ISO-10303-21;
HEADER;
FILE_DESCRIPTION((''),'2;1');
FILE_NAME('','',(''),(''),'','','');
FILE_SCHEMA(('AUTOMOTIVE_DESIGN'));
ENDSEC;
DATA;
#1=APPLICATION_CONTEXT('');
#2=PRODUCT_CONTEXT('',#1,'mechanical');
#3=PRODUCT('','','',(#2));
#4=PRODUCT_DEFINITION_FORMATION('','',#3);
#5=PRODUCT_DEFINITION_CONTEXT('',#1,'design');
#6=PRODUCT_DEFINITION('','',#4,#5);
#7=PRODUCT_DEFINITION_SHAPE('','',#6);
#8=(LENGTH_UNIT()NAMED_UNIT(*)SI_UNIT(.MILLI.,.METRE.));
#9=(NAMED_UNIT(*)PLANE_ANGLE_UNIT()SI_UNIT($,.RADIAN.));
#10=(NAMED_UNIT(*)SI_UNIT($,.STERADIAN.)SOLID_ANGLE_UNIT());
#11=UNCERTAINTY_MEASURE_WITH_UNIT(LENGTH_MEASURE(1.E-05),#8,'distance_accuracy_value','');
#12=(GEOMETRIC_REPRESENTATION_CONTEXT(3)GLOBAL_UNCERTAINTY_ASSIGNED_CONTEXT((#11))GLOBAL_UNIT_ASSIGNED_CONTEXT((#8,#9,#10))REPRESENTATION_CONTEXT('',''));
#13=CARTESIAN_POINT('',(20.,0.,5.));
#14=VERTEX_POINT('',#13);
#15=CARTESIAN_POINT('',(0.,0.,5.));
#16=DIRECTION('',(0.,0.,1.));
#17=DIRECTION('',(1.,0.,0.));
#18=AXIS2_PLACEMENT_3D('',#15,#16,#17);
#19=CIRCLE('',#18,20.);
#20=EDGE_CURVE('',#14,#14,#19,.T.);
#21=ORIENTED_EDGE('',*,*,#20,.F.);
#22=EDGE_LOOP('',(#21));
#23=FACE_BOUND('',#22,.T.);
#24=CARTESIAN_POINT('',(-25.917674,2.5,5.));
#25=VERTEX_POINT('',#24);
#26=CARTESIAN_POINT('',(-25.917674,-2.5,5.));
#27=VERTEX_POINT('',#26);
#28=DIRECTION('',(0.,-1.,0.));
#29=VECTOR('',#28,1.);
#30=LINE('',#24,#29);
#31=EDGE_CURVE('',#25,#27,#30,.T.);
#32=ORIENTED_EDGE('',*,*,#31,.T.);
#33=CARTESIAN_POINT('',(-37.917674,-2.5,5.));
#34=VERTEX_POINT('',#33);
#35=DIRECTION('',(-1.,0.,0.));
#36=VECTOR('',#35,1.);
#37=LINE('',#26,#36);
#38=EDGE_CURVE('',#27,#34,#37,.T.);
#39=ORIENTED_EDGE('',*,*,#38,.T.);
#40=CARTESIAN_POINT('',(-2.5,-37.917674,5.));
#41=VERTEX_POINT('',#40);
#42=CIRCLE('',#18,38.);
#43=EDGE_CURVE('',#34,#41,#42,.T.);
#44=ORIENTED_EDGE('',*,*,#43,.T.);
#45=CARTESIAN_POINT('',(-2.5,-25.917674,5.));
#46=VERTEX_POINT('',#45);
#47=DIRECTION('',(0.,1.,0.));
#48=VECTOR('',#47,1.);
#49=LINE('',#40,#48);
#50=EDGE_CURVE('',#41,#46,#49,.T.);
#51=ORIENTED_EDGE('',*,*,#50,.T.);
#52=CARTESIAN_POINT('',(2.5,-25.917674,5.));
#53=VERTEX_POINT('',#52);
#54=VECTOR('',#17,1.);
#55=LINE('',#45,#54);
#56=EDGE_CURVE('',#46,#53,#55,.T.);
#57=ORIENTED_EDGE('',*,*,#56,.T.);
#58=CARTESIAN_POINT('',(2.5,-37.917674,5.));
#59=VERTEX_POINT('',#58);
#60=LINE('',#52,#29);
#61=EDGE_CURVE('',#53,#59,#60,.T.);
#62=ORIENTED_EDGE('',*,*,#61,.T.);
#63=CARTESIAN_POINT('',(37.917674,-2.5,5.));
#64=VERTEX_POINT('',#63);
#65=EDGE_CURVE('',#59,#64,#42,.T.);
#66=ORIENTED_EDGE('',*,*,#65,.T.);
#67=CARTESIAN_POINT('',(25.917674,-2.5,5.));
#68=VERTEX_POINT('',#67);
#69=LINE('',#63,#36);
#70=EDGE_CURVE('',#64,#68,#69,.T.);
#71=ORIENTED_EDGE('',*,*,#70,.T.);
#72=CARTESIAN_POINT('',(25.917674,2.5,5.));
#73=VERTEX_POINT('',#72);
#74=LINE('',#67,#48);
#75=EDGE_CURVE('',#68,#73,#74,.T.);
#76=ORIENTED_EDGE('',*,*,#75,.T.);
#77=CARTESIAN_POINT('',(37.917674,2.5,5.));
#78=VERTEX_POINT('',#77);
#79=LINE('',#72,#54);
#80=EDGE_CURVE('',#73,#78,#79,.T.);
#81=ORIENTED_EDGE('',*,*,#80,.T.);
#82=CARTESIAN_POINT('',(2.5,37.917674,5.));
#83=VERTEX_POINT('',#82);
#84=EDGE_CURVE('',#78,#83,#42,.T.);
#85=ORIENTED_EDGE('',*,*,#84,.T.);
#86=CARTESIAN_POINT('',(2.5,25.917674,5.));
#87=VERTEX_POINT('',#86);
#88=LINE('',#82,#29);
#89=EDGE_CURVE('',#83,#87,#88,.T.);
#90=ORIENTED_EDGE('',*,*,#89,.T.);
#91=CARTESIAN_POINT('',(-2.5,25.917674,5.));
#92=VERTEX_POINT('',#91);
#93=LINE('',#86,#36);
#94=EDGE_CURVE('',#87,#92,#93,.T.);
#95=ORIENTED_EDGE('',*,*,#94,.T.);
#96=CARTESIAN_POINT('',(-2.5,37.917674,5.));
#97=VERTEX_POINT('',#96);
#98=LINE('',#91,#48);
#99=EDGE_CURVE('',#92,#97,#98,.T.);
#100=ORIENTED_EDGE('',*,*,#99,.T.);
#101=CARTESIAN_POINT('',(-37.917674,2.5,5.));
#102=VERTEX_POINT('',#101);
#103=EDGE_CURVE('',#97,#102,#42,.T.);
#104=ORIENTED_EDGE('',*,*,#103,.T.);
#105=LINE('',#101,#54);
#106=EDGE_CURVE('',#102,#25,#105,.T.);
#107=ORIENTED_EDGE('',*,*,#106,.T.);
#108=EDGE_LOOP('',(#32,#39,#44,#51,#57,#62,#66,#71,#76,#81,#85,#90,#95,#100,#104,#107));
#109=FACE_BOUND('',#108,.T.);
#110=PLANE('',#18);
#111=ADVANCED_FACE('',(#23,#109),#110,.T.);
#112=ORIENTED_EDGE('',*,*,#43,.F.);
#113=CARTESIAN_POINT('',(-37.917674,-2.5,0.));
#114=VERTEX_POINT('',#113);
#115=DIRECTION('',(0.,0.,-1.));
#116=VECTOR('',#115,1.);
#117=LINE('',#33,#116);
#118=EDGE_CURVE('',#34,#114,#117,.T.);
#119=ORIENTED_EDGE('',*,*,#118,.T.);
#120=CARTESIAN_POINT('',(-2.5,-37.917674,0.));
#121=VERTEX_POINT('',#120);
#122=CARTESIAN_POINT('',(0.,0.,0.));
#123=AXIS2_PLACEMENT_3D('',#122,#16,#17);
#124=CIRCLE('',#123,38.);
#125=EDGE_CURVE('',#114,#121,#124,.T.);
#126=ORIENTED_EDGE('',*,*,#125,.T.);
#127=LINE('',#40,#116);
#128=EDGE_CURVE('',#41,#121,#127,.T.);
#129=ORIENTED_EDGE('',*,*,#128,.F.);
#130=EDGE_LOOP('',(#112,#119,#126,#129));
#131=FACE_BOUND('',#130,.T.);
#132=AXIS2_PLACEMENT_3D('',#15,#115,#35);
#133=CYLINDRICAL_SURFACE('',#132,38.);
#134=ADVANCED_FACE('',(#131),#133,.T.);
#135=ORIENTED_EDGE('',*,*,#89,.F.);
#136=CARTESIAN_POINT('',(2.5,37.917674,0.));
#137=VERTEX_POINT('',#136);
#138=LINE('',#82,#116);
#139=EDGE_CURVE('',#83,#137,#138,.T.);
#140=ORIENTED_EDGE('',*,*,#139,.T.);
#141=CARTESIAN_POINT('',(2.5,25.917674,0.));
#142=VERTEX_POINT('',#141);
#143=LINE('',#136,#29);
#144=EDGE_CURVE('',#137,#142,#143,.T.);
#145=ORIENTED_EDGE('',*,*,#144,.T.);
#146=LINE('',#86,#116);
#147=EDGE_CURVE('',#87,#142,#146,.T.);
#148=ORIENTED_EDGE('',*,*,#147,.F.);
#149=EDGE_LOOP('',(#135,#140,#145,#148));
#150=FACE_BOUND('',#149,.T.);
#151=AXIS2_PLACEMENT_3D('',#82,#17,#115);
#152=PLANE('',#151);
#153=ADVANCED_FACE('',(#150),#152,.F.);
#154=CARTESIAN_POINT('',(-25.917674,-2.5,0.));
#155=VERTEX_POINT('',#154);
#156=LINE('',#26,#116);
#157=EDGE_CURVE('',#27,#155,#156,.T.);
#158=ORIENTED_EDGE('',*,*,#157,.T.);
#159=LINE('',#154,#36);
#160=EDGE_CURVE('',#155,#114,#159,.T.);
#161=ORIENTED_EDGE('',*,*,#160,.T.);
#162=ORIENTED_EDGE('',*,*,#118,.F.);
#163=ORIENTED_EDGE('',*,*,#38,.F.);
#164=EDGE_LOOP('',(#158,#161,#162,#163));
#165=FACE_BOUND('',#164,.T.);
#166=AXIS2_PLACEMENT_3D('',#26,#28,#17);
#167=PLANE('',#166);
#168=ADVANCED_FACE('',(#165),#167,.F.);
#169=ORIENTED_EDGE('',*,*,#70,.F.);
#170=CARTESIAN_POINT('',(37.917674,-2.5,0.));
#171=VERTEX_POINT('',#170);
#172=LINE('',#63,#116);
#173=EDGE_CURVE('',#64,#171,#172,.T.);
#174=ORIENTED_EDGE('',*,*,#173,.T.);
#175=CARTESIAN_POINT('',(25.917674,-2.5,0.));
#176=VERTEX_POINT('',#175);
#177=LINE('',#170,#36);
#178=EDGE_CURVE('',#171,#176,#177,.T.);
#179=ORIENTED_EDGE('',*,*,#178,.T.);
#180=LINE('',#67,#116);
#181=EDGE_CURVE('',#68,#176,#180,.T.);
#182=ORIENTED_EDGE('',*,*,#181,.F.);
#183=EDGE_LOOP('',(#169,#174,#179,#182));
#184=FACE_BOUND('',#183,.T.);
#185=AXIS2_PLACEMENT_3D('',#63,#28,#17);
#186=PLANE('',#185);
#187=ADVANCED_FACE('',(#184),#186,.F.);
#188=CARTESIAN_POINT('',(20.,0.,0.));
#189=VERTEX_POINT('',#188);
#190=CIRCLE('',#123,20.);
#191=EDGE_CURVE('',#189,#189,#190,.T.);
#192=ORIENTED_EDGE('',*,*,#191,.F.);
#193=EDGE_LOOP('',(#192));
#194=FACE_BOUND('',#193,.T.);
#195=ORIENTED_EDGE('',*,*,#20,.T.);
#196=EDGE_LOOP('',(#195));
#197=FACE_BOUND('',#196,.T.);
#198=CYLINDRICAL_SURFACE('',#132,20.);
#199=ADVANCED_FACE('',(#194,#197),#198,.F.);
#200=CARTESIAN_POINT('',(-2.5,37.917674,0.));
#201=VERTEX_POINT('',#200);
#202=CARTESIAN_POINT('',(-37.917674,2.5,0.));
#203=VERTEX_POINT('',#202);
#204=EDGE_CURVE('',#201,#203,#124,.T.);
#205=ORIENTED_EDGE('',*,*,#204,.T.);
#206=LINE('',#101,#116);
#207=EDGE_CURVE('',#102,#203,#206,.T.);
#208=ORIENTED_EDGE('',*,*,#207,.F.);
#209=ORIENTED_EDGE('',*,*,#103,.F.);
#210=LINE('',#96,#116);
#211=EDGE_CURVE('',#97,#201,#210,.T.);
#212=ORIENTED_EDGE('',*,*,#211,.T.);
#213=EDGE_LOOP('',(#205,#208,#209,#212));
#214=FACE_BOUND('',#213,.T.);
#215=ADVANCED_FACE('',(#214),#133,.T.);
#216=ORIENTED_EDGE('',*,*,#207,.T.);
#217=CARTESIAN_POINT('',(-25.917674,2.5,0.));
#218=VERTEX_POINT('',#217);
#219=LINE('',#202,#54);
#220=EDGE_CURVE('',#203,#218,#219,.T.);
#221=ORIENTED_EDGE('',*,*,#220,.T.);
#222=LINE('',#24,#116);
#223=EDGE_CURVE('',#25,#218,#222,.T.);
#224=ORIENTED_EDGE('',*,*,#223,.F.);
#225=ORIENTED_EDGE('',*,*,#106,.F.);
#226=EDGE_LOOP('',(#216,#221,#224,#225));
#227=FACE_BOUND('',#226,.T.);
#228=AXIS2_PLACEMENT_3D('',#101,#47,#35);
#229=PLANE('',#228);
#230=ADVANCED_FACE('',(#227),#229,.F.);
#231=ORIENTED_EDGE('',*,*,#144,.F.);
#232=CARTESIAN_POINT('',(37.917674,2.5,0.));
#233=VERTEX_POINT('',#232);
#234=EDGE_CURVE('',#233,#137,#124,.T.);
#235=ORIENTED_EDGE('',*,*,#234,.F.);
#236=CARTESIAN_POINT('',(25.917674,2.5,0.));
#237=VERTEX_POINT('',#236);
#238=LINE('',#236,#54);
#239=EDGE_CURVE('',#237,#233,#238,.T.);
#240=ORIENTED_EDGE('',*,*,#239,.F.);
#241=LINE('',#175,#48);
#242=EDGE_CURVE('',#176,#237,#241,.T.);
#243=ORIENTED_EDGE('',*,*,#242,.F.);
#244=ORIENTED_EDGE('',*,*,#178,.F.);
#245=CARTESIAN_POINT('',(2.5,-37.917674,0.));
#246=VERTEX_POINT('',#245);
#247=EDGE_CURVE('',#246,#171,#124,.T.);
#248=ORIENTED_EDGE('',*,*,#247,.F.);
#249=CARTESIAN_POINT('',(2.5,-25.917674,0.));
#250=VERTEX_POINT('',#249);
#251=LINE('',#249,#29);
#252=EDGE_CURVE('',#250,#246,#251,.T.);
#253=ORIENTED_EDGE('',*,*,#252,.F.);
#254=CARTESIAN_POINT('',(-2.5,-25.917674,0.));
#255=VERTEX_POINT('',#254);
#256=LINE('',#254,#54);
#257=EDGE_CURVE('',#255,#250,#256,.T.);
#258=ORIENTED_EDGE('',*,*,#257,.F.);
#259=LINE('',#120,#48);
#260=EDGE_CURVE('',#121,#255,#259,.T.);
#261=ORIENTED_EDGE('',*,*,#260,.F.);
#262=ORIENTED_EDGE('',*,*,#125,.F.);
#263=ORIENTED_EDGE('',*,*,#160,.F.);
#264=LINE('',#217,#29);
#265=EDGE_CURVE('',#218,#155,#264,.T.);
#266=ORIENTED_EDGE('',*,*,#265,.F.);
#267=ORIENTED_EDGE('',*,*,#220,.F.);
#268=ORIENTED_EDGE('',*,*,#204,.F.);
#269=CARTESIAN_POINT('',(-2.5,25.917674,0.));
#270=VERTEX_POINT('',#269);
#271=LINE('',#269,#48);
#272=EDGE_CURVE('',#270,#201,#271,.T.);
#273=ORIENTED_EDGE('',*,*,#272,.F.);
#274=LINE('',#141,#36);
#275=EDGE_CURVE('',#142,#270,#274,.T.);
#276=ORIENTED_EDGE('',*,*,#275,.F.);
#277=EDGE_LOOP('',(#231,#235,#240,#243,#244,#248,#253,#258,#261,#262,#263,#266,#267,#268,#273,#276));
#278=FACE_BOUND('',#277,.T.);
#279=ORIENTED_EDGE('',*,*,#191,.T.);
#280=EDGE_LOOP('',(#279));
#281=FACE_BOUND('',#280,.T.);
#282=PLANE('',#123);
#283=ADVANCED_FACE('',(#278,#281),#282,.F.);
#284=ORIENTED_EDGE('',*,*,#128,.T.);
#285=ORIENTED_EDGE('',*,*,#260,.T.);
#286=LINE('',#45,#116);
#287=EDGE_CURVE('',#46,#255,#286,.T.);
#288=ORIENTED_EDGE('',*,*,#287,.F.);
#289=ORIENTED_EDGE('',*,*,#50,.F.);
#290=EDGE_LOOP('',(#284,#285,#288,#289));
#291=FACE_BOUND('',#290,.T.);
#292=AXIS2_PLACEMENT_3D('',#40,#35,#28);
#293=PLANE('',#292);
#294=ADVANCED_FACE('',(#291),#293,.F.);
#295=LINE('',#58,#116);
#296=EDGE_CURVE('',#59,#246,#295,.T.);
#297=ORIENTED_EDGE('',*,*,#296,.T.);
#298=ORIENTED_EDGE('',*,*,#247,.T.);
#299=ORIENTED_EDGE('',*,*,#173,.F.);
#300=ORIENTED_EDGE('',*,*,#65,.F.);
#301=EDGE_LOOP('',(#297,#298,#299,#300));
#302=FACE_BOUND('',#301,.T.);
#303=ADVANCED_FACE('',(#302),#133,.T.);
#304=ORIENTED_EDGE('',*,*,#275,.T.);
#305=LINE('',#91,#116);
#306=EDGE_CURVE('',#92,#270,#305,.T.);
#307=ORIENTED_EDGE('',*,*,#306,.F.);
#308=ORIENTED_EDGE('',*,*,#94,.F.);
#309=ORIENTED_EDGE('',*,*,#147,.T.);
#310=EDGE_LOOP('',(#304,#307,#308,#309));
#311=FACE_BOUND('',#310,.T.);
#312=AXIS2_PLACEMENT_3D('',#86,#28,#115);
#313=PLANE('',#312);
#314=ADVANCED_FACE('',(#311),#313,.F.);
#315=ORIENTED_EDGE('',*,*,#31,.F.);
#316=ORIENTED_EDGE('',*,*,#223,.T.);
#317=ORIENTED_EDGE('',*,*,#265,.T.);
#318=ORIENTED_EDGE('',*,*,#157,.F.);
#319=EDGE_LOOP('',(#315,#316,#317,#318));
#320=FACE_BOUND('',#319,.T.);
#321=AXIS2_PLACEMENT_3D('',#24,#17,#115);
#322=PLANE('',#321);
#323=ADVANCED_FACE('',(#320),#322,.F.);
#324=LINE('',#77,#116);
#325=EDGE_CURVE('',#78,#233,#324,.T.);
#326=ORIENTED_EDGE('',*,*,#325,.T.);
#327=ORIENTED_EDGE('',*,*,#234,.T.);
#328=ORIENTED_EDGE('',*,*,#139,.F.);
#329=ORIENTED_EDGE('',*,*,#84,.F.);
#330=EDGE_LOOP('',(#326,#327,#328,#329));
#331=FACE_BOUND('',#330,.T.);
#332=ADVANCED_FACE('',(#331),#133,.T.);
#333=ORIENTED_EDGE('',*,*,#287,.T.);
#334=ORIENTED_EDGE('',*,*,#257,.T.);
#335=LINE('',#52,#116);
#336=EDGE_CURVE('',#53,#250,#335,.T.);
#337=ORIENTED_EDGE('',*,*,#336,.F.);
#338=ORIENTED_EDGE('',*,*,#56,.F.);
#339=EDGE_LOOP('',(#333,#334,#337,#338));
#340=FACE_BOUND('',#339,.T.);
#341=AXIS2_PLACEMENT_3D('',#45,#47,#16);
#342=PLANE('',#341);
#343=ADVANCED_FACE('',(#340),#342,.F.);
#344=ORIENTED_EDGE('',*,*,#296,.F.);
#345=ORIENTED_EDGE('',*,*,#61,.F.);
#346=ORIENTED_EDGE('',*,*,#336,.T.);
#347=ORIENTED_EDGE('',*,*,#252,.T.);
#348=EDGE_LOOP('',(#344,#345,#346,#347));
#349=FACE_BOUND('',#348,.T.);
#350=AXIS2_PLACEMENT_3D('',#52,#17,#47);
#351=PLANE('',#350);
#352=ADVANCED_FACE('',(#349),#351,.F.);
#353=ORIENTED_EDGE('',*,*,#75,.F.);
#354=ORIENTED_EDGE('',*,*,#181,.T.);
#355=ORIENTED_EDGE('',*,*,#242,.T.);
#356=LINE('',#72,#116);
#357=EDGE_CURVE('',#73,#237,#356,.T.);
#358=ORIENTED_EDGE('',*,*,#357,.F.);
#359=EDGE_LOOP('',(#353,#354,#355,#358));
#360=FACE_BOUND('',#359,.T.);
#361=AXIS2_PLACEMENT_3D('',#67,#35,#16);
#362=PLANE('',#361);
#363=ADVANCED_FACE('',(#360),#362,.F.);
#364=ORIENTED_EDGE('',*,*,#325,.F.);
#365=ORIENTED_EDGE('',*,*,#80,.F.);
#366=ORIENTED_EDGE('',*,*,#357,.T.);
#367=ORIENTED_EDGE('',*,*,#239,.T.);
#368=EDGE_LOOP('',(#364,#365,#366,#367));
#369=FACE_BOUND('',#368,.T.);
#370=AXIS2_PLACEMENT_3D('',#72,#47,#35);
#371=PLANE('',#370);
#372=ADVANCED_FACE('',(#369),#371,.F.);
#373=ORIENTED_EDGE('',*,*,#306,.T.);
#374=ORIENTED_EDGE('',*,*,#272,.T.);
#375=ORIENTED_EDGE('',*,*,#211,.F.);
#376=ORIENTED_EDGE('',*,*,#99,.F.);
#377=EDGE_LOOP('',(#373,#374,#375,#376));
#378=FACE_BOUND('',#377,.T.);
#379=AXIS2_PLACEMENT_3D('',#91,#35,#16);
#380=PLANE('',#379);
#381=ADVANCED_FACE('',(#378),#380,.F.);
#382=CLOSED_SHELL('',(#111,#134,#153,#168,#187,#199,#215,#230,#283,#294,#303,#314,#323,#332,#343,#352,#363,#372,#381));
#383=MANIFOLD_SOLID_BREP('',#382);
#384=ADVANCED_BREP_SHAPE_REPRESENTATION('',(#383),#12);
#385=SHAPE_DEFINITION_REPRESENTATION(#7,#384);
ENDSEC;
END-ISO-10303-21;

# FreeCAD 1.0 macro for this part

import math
import FreeCAD as App
import Part
import Sketcher
from FreeCAD import Vector

doc = App.newDocument("Part")
body = doc.addObject("PartDesign::Body", "Body")

# Sketch on XY plane
sketch1 = body.newObject("Sketcher::SketchObject", "Sketch")
sketch1.AttachmentSupport = (doc.getObject("XY_Plane"), [""])
sketch1.MapMode = "FlatFace"
sketch1.addGeometry([
    Part.LineSegment(Vector(2, 38, 0), Vector(2, 26, 0)),  # 0
    Part.LineSegment(Vector(2, 26, 0), Vector(-2, 26, 0)),  # 1
    Part.LineSegment(Vector(-2, 26, 0), Vector(-2, 38, 0)),  # 2
    Part.ArcOfCircle(Part.Circle(Vector(0, 0, 0), Vector(0, 0, 1), 38), math.radians(94), math.radians(176)),  # 3
    Part.LineSegment(Vector(-38, 2, 0), Vector(-26, 2, 0)),  # 4
    Part.LineSegment(Vector(-26, 2, 0), Vector(-26, -2, 0)),  # 5
    Part.LineSegment(Vector(-26, -2, 0), Vector(-38, -2, 0)),  # 6
    Part.ArcOfCircle(Part.Circle(Vector(0, 0, 0), Vector(0, 0, 1), 38), math.radians(-176), math.radians(-94)),  # 7
    Part.LineSegment(Vector(-2, -38, 0), Vector(-2, -26, 0)),  # 8
    Part.LineSegment(Vector(-2, -26, 0), Vector(2, -26, 0)),  # 9
    Part.LineSegment(Vector(2, -26, 0), Vector(2, -38, 0)),  # 10
    Part.ArcOfCircle(Part.Circle(Vector(0, 0, 0), Vector(0, 0, 1), 38), math.radians(-86), math.radians(-4)),  # 11
    Part.LineSegment(Vector(38, -2, 0), Vector(26, -2, 0)),  # 12
    Part.LineSegment(Vector(26, -2, 0), Vector(26, 2, 0)),  # 13
    Part.LineSegment(Vector(26, 2, 0), Vector(38, 2, 0)),  # 14
    Part.ArcOfCircle(Part.Circle(Vector(0, 0, 0), Vector(0, 0, 1), 38), math.radians(4), math.radians(86)),  # 15
    Part.Circle(Vector(0, 0, 0), Vector(0, 0, 1), 20),  # 16
], False)
sketch1.addConstraint([
    Sketcher.Constraint("Coincident", 0, 2, 1, 1),
    Sketcher.Constraint("Coincident", 1, 2, 2, 1),
    Sketcher.Constraint("Coincident", 2, 2, 3, 1),
    Sketcher.Constraint("Coincident", 3, 2, 4, 1),
    Sketcher.Constraint("Coincident", 4, 2, 5, 1),
    Sketcher.Constraint("Coincident", 5, 2, 6, 1),
    Sketcher.Constraint("Coincident", 6, 2, 7, 1),
    Sketcher.Constraint("Coincident", 7, 2, 8, 1),
    Sketcher.Constraint("Coincident", 8, 2, 9, 1),
    Sketcher.Constraint("Coincident", 9, 2, 10, 1),
    Sketcher.Constraint("Coincident", 10, 2, 11, 1),
    Sketcher.Constraint("Coincident", 11, 2, 12, 1),
    Sketcher.Constraint("Coincident", 12, 2, 13, 1),
    Sketcher.Constraint("Coincident", 13, 2, 14, 1),
    Sketcher.Constraint("Coincident", 14, 2, 15, 1),
    Sketcher.Constraint("Coincident", 15, 2, 0, 1),
    Sketcher.Constraint("Vertical", 0),
    Sketcher.Constraint("Horizontal", 1),
    Sketcher.Constraint("Vertical", 2),
    Sketcher.Constraint("Horizontal", 4),
    Sketcher.Constraint("Vertical", 5),
    Sketcher.Constraint("Horizontal", 6),
    Sketcher.Constraint("Vertical", 8),
    Sketcher.Constraint("Horizontal", 9),
    Sketcher.Constraint("Vertical", 10),
    Sketcher.Constraint("Horizontal", 12),
    Sketcher.Constraint("Vertical", 13),
    Sketcher.Constraint("Horizontal", 14),
    Sketcher.Constraint("Coincident", 3, 3, -1, 1),
    Sketcher.Constraint("Coincident", 7, 3, -1, 1),
    Sketcher.Constraint("Coincident", 11, 3, -1, 1),
    Sketcher.Constraint("Coincident", 15, 3, -1, 1),
    Sketcher.Constraint("Coincident", 16, 3, -1, 1),
    Sketcher.Constraint("Equal", 3, 7),
    Sketcher.Constraint("Equal", 7, 11),
    Sketcher.Constraint("Equal", 11, 15),
    Sketcher.Constraint("Symmetric", 0, 2, 8, 2, -1, 1),
    Sketcher.Constraint("Symmetric", 4, 2, 12, 2, -1, 1),
    Sketcher.Constraint("Horizontal", 7, 2, 10, 2),
    Sketcher.Constraint("Horizontal", 6, 2, 11, 2),
    Sketcher.Constraint("Horizontal", 4, 2, 13, 2),
    Sketcher.Constraint("Horizontal", 2, 2, 15, 2),
    Sketcher.Constraint("Equal", 14, 0),
    Sketcher.Constraint("Equal", 9, 5),
    Sketcher.Constraint("Diameter", 16, 40.0),
    Sketcher.Constraint("Radius", 3, 38.0),
    Sketcher.Constraint("DistanceX", 1, 2, 1, 1, 5.0),
    Sketcher.Constraint("DistanceX", 4, 1, 4, 2, 12.0),
])
pad1 = body.newObject("PartDesign::Pad", "Pad")
pad1.Profile = sketch1
pad1.Length = 5

doc.recompute()
